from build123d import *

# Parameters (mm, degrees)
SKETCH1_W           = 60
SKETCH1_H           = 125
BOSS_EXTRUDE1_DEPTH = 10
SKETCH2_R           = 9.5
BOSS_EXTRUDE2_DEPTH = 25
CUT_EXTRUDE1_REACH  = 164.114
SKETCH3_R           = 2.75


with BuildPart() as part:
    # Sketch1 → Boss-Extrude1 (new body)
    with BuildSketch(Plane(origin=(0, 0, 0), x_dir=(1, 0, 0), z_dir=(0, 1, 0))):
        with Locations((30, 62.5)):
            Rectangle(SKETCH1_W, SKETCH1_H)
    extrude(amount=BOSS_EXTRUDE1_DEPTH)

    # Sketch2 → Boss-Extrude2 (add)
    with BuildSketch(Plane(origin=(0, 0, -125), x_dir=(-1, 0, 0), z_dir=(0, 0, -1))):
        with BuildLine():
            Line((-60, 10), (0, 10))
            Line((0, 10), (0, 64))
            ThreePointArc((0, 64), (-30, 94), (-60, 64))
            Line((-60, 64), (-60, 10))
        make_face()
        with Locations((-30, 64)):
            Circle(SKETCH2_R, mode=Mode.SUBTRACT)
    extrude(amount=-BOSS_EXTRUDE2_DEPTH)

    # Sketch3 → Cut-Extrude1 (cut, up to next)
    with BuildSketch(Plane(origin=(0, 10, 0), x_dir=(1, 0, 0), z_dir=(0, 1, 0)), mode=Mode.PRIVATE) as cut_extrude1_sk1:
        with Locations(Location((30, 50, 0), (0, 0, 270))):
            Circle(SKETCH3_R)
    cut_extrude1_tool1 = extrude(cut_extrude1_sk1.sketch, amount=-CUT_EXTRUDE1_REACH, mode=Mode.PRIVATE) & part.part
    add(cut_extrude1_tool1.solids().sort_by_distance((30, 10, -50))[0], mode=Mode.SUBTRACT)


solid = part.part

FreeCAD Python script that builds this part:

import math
import FreeCAD as App
import Part
import Sketcher


def add_polygon(sketch, points):
    """Adds a closed chain of lines whose ends are joined by coincident constraints."""
    first, n = sketch.GeometryCount, len(points)
    for a, b in zip(points, points[1:] + points[:1]):
        sketch.addGeometry(Part.LineSegment(App.Vector(*a, 0), App.Vector(*b, 0)), False)
    for i in range(n):
        sketch.addConstraint(Sketcher.Constraint("Coincident", first + i, 2, first + (i + 1) % n, 1))

doc = App.newDocument("Part")
params = doc.addObject("Spreadsheet::Sheet", "Params")
for row, (alias, value) in enumerate([
    ("sketch1_width", "60 mm"),
    ("sketch1_height", "125 mm"),
    ("pad1_length", "10 mm"),
    ("sketch2_diameter", "19 mm"),
    ("sketch2_radius", "30 mm"),
    ("sketch2_height", "54 mm"),
    ("pad2_length", "25 mm"),
    ("sketch3_diameter", "5.5 mm"),
], start=1):
    params.set(f"A{row}", alias)
    params.set(f"B{row}", "=" + value)
    params.setAlias(f"B{row}", alias)

body = doc.addObject("PartDesign::Body", "Body")

sketch1 = body.newObject("Sketcher::SketchObject", "Sketch")
sketch1.AttachmentSupport = (doc.getObject("XZ_Plane"), [""])
sketch1.MapMode = "FlatFace"
add_polygon(sketch1, [(0, -125), (0, 0), (60, 0), (60, -125)])
sketch1.addConstraint([
    Sketcher.Constraint("Vertical", 0),
    Sketcher.Constraint("Horizontal", 1),
    Sketcher.Constraint("Vertical", 2),
    Sketcher.Constraint("Horizontal", 3),
    Sketcher.Constraint("Coincident", 0, 2, -1, 1),
    Sketcher.Constraint("DistanceX", 1, 1, 1, 2, 60.0),
    Sketcher.Constraint("DistanceY", 0, 1, 0, 2, 125.0),
])
sketch1.setExpression("Constraints[9]", "Params.sketch1_width")
sketch1.setExpression("Constraints[10]", "Params.sketch1_height")
pad1 = body.newObject("PartDesign::Pad", "Pad")
pad1.Profile = sketch1
pad1.setExpression("Length", "Params.pad1_length")
pad1.Reversed = True

sketch2 = body.newObject("Sketcher::SketchObject", "Sketch001")
sketch2.AttachmentSupport = (doc.getObject("XY_Plane"), [""])
sketch2.MapMode = "FlatFace"
sketch2.AttachmentOffset = App.Placement(App.Vector(0, 0, -125), App.Rotation())
sketch2.addGeometry([
    Part.LineSegment(App.Vector(60, 10, 0), App.Vector(0, 10, 0)),
    Part.LineSegment(App.Vector(0, 10, 0), App.Vector(0, 64, 0)),
    Part.ArcOfCircle(Part.Circle(App.Vector(30, 64, 0), App.Vector(0, 0, 1), 30), math.radians(0), math.radians(180)),
    Part.LineSegment(App.Vector(60, 64, 0), App.Vector(60, 10, 0)),
    Part.Circle(App.Vector(30, 64, 0), App.Vector(0, 0, 1), 10),
], False)
sketch2.addConstraint([
    Sketcher.Constraint("Coincident", 0, 2, 1, 1),
    Sketcher.Constraint("Tangent", 1, 2, 2, 2),
    Sketcher.Constraint("Tangent", 2, 1, 3, 1),
    Sketcher.Constraint("Coincident", 3, 2, 0, 1),
    Sketcher.Constraint("Horizontal", 0),
    Sketcher.Constraint("Vertical", 1),
    Sketcher.Constraint("Vertical", 3),
    Sketcher.Constraint("Coincident", 4, 3, 2, 3),
    Sketcher.Constraint("PointOnObject", 0, 2, -2),
    Sketcher.Constraint("Diameter", 4, 19.0),
    Sketcher.Constraint("Radius", 2, 30.0),
    Sketcher.Constraint("DistanceY", 1, 1, 1, 2, 54.0),
    Sketcher.Constraint("DistanceY", -1, 1, 2, 3, 64.0),
])
sketch2.setExpression("Constraints[9]", "Params.sketch2_diameter")
sketch2.setExpression("Constraints[10]", "Params.sketch2_radius")
sketch2.setExpression("Constraints[11]", "Params.sketch2_height")
pad2 = body.newObject("PartDesign::Pad", "Pad001")
pad2.Profile = sketch2
pad2.setExpression("Length", "Params.pad2_length")

sketch3 = body.newObject("Sketcher::SketchObject", "Sketch002")
sketch3.AttachmentSupport = (doc.getObject("XZ_Plane"), [""])
sketch3.MapMode = "FlatFace"
sketch3.AttachmentOffset = App.Placement(App.Vector(0, 0, -10), App.Rotation())
sketch3.addGeometry(Part.Circle(App.Vector(30, -50, 0), App.Vector(0, 0, 1), 2.8), False)
sketch3.addConstraint([
    Sketcher.Constraint("Diameter", 0, 5.5),
    Sketcher.Constraint("DistanceX", -1, 1, 0, 3, 30.0),
    Sketcher.Constraint("DistanceY", 0, 3, -1, 1, 50.0),
])
sketch3.setExpression("Constraints[0]", "Params.sketch3_diameter")
pocket1 = body.newObject("PartDesign::Pocket", "Pocket")
pocket1.Profile = sketch3
pocket1.Type = "UpToFirst"
pocket1.Reversed = True

doc.recompute()
